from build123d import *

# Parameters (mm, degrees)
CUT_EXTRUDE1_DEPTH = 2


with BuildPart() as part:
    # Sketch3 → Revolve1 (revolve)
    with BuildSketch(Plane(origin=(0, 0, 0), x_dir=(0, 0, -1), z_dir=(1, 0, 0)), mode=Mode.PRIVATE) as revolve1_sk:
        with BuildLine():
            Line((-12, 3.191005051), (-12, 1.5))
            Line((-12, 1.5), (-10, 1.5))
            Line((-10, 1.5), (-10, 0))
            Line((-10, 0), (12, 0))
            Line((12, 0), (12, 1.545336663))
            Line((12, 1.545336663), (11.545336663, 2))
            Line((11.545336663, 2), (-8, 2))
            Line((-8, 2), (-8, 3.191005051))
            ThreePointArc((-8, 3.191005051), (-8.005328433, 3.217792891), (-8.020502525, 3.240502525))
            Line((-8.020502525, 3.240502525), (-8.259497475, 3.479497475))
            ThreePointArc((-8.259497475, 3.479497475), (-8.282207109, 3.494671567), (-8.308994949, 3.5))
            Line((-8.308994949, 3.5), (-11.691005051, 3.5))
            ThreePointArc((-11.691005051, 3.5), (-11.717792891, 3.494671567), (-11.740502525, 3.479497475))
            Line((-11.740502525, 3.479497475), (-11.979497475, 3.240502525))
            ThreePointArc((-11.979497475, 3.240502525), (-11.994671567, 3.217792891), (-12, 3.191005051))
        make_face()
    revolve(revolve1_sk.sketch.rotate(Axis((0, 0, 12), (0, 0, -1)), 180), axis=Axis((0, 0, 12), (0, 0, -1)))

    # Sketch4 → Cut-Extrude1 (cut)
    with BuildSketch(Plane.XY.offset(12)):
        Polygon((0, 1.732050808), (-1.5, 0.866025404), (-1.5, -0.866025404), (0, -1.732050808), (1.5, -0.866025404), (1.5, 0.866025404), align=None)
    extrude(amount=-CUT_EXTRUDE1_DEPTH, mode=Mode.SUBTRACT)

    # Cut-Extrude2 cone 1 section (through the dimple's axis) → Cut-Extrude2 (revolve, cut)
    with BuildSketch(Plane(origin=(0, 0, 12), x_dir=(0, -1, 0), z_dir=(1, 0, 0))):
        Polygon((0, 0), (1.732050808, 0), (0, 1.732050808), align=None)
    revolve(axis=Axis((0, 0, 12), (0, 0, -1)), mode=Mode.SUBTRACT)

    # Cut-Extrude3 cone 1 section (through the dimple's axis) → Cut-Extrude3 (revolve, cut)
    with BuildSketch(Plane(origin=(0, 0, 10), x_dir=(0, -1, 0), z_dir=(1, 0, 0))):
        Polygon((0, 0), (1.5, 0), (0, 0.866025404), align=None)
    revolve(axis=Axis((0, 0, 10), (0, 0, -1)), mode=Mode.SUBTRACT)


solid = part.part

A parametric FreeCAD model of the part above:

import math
import FreeCAD as App
import Part
import Sketcher

V = App.Vector
Q = App.Units.Quantity

doc = App.newDocument("Part")
body = doc.addObject("PartDesign::Body", "Body")

# Sketch on YZ plane
sketch1 = body.newObject("Sketcher::SketchObject", "Sketch")
sketch1.AttachmentSupport = (doc.getObject("YZ_Plane"), [""])
sketch1.MapMode = "FlatFace"
sketch1.addGeometry([
    Part.LineSegment(V(3.191005, 12, 0), V(1.5, 12, 0)),  # 0
    Part.LineSegment(V(1.5, 12, 0), V(1.5, 10, 0)),  # 1
    Part.LineSegment(V(1.5, 10, 0), V(0, 10, 0)),  # 2
    Part.LineSegment(V(0, 10, 0), V(0, -12, 0)),  # 3
    Part.LineSegment(V(0, -12, 0), V(1.545337, -12, 0)),  # 4
    Part.LineSegment(V(1.545337, -12, 0), V(2, -11.545337, 0)),  # 5
    Part.LineSegment(V(2, -11.545337, 0), V(2, 8, 0)),  # 6
    Part.LineSegment(V(2, 8, 0), V(3.191005, 8, 0)),  # 7
    Part.ArcOfCircle(Part.Circle(V(3.191005, 8.07, 0), V(0, 0, 1), 0.07), math.radians(-89.999999), math.radians(-45.000002)),  # 8
    Part.LineSegment(V(3.240503, 8.020503, 0), V(3.479497, 8.259497, 0)),  # 9
    Part.ArcOfCircle(Part.Circle(V(3.43, 8.308995, 0), V(0, 0, 1), 0.07), math.radians(-44.999998), math.radians(-0.000001)),  # 10
    Part.LineSegment(V(3.5, 8.308995, 0), V(3.5, 11.691005, 0)),  # 11
    Part.ArcOfCircle(Part.Circle(V(3.43, 11.691005, 0), V(0, 0, 1), 0.07), math.radians(0.000001), math.radians(44.999998)),  # 12
    Part.LineSegment(V(3.479497, 11.740503, 0), V(3.240503, 11.979497, 0)),  # 13
    Part.ArcOfCircle(Part.Circle(V(3.191005, 11.93, 0), V(0, 0, 1), 0.07), math.radians(45.000002), math.radians(89.999999)),  # 14
], False)
sketch1.addConstraint([
    Sketcher.Constraint("Coincident", 0, 2, 1, 1),
    Sketcher.Constraint("Coincident", 1, 2, 2, 1),
    Sketcher.Constraint("Coincident", 2, 2, 3, 1),
    Sketcher.Constraint("Coincident", 3, 2, 4, 1),
    Sketcher.Constraint("Coincident", 4, 2, 5, 1),
    Sketcher.Constraint("Coincident", 5, 2, 6, 1),
    Sketcher.Constraint("Coincident", 6, 2, 7, 1),
    Sketcher.Constraint("Tangent", 7, 2, 8, 1),
    Sketcher.Constraint("Tangent", 8, 2, 9, 1),
    Sketcher.Constraint("Tangent", 9, 2, 10, 1),
    Sketcher.Constraint("Tangent", 10, 2, 11, 1),
    Sketcher.Constraint("Tangent", 11, 2, 12, 1),
    Sketcher.Constraint("Tangent", 12, 2, 13, 1),
    Sketcher.Constraint("Tangent", 13, 2, 14, 1),
    Sketcher.Constraint("Tangent", 14, 2, 0, 1),
    Sketcher.Constraint("Horizontal", 0),
    Sketcher.Constraint("Vertical", 1),
    Sketcher.Constraint("Horizontal", 2),
    Sketcher.Constraint("Vertical", 3),
    Sketcher.Constraint("Horizontal", 4),
    Sketcher.Constraint("Vertical", 6),
    Sketcher.Constraint("Horizontal", 7),
    Sketcher.Constraint("Vertical", 11),
    Sketcher.Constraint("Equal", 8, 10),
    Sketcher.Constraint("Equal", 10, 12),
    Sketcher.Constraint("Equal", 12, 14),
    Sketcher.Constraint("PointOnObject", 2, 2, -2),
    Sketcher.Constraint("Parallel", 5, 9),
    Sketcher.Constraint("Perpendicular", 9, 13),
    Sketcher.Constraint("Vertical", 8, 3, 14, 3),
    Sketcher.Constraint("Vertical", 9, 2, 12, 2),
    Sketcher.Constraint("DistanceY", 1, 2, 1, 1, Q("2 mm")),
    Sketcher.Constraint("DistanceY", 3, 2, 3, 1, Q("22 mm")),
    Sketcher.Constraint("Radius", 8, Q("0.07 mm")),
    Sketcher.Constraint("DistanceX", 2, 2, 2, 1, Q("1.5 mm")),
    Sketcher.Constraint("DistanceY", -1, 1, 0, 2, Q("12 mm")),
    Sketcher.Constraint("DistanceX", -1, 1, 5, 2, Q("2 mm")),
    Sketcher.Constraint("DistanceY", -1, 1, 6, 2, Q("8 mm")),
    Sketcher.Constraint("DistanceX", 0, 2, 11, 2, Q("2 mm")),
    Sketcher.Constraint("DistanceY", 11, 1, 11, 2, Q("3.38201 mm")),
    Sketcher.Constraint("Distance", 5, Q("0.642991 mm")),
])
revolution = body.newObject("PartDesign::Revolution", "Revolution")
revolution.Profile = sketch1
revolution.ReferenceAxis = (sketch1, ["V_Axis"])
revolution.Angle = 360

# Sketch on XY plane
sketch2 = body.newObject("Sketcher::SketchObject", "Sketch001")
sketch2.AttachmentSupport = (doc.getObject("XY_Plane"), [""])
sketch2.MapMode = "FlatFace"
sketch2.AttachmentOffset = App.Placement(V(0, 0, 12), App.Rotation())
sketch2.addGeometry([
    Part.LineSegment(V(0, 1.732051, 0), V(-1.5, 0.866025, 0)),  # 0
    Part.LineSegment(V(-1.5, 0.866025, 0), V(-1.5, -0.866025, 0)),  # 1
    Part.LineSegment(V(-1.5, -0.866025, 0), V(0, -1.732051, 0)),  # 2
    Part.LineSegment(V(0, -1.732051, 0), V(1.5, -0.866025, 0)),  # 3
    Part.LineSegment(V(1.5, -0.866025, 0), V(1.5, 0.866025, 0)),  # 4
    Part.LineSegment(V(1.5, 0.866025, 0), V(0, 1.732051, 0)),  # 5
], False)
sketch2.addConstraint([
    Sketcher.Constraint("Coincident", 0, 2, 1, 1),
    Sketcher.Constraint("Coincident", 1, 2, 2, 1),
    Sketcher.Constraint("Coincident", 2, 2, 3, 1),
    Sketcher.Constraint("Coincident", 3, 2, 4, 1),
    Sketcher.Constraint("Coincident", 4, 2, 5, 1),
    Sketcher.Constraint("Coincident", 5, 2, 0, 1),
    Sketcher.Constraint("Vertical", 1),
    Sketcher.Constraint("Vertical", 4),
    Sketcher.Constraint("Symmetric", 0, 2, 3, 2, -1, 1),
    Sketcher.Constraint("Symmetric", 2, 2, 5, 2, -1, 1),
    Sketcher.Constraint("PointOnObject", 2, 2, -2),
    Sketcher.Constraint("Parallel", 2, 5),
    Sketcher.Constraint("Horizontal", 1, 2, 3, 2),
    Sketcher.Constraint("Angle", 0, Q("-150 deg")),
    Sketcher.Constraint("DistanceX", 1, 2, 3, 2, Q("3 mm")),
    Sketcher.Constraint("DistanceY", 1, 2, 1, 1, Q("1.732051 mm")),
])
pocket1 = body.newObject("PartDesign::Pocket", "Pocket")
pocket1.Profile = sketch2
pocket1.Length = 2

# Sketch on YZ plane
sketch3 = body.newObject("Sketcher::SketchObject", "Sketch002")
sketch3.AttachmentSupport = (doc.getObject("YZ_Plane"), [""])
sketch3.MapMode = "FlatFace"
sketch3.addGeometry([
    Part.LineSegment(V(0, 12, 0), V(-1.732051, 12, 0)),
    Part.LineSegment(V(-1.732051, 12, 0), V(0, 10.267949, 0)),
    Part.LineSegment(V(0, 10.267949, 0), V(0, 12, 0)),
], False)
sketch3.addConstraint([
    Sketcher.Constraint("Coincident", 0, 2, 1, 1),
    Sketcher.Constraint("Coincident", 1, 2, 2, 1),
    Sketcher.Constraint("Coincident", 2, 2, 0, 1),
    Sketcher.Constraint("Horizontal", 0),
    Sketcher.Constraint("Vertical", 2),
    Sketcher.Constraint("PointOnObject", 1, 2, -2),
    Sketcher.Constraint("Equal", 0, 2),
    Sketcher.Constraint("DistanceY", -1, 1, 0, 2, Q("12 mm")),
    Sketcher.Constraint("DistanceX", 0, 2, 0, 1, Q("1.732051 mm")),
])
groove = body.newObject("PartDesign::Groove", "Groove")
groove.Profile = sketch3
groove.ReferenceAxis = (sketch3, ["V_Axis"])
groove.Angle = 360

# Sketch on YZ plane
sketch4 = body.newObject("Sketcher::SketchObject", "Sketch003")
sketch4.AttachmentSupport = (doc.getObject("YZ_Plane"), [""])
sketch4.MapMode = "FlatFace"
sketch4.addGeometry([
    Part.LineSegment(V(0, 10, 0), V(-1.5, 10, 0)),
    Part.LineSegment(V(-1.5, 10, 0), V(0, 9.133975, 0)),
    Part.LineSegment(V(0, 9.133975, 0), V(0, 10, 0)),
], False)
sketch4.addConstraint([
    Sketcher.Constraint("Coincident", 0, 2, 1, 1),
    Sketcher.Constraint("Coincident", 1, 2, 2, 1),
    Sketcher.Constraint("Coincident", 2, 2, 0, 1),
    Sketcher.Constraint("Horizontal", 0),
    Sketcher.Constraint("Vertical", 2),
    Sketcher.Constraint("PointOnObject", 1, 2, -2),
    Sketcher.Constraint("Angle", 1, Q("-30 deg")),
    Sketcher.Constraint("DistanceX", 0, 2, 0, 1, Q("1.5 mm")),
    Sketcher.Constraint("DistanceY", -1, 1, 0, 2, Q("10 mm")),
])
groove2 = body.newObject("PartDesign::Groove", "Groove001")
groove2.Profile = sketch4
groove2.ReferenceAxis = (sketch4, ["V_Axis"])
groove2.Angle = 360

doc.recompute()
